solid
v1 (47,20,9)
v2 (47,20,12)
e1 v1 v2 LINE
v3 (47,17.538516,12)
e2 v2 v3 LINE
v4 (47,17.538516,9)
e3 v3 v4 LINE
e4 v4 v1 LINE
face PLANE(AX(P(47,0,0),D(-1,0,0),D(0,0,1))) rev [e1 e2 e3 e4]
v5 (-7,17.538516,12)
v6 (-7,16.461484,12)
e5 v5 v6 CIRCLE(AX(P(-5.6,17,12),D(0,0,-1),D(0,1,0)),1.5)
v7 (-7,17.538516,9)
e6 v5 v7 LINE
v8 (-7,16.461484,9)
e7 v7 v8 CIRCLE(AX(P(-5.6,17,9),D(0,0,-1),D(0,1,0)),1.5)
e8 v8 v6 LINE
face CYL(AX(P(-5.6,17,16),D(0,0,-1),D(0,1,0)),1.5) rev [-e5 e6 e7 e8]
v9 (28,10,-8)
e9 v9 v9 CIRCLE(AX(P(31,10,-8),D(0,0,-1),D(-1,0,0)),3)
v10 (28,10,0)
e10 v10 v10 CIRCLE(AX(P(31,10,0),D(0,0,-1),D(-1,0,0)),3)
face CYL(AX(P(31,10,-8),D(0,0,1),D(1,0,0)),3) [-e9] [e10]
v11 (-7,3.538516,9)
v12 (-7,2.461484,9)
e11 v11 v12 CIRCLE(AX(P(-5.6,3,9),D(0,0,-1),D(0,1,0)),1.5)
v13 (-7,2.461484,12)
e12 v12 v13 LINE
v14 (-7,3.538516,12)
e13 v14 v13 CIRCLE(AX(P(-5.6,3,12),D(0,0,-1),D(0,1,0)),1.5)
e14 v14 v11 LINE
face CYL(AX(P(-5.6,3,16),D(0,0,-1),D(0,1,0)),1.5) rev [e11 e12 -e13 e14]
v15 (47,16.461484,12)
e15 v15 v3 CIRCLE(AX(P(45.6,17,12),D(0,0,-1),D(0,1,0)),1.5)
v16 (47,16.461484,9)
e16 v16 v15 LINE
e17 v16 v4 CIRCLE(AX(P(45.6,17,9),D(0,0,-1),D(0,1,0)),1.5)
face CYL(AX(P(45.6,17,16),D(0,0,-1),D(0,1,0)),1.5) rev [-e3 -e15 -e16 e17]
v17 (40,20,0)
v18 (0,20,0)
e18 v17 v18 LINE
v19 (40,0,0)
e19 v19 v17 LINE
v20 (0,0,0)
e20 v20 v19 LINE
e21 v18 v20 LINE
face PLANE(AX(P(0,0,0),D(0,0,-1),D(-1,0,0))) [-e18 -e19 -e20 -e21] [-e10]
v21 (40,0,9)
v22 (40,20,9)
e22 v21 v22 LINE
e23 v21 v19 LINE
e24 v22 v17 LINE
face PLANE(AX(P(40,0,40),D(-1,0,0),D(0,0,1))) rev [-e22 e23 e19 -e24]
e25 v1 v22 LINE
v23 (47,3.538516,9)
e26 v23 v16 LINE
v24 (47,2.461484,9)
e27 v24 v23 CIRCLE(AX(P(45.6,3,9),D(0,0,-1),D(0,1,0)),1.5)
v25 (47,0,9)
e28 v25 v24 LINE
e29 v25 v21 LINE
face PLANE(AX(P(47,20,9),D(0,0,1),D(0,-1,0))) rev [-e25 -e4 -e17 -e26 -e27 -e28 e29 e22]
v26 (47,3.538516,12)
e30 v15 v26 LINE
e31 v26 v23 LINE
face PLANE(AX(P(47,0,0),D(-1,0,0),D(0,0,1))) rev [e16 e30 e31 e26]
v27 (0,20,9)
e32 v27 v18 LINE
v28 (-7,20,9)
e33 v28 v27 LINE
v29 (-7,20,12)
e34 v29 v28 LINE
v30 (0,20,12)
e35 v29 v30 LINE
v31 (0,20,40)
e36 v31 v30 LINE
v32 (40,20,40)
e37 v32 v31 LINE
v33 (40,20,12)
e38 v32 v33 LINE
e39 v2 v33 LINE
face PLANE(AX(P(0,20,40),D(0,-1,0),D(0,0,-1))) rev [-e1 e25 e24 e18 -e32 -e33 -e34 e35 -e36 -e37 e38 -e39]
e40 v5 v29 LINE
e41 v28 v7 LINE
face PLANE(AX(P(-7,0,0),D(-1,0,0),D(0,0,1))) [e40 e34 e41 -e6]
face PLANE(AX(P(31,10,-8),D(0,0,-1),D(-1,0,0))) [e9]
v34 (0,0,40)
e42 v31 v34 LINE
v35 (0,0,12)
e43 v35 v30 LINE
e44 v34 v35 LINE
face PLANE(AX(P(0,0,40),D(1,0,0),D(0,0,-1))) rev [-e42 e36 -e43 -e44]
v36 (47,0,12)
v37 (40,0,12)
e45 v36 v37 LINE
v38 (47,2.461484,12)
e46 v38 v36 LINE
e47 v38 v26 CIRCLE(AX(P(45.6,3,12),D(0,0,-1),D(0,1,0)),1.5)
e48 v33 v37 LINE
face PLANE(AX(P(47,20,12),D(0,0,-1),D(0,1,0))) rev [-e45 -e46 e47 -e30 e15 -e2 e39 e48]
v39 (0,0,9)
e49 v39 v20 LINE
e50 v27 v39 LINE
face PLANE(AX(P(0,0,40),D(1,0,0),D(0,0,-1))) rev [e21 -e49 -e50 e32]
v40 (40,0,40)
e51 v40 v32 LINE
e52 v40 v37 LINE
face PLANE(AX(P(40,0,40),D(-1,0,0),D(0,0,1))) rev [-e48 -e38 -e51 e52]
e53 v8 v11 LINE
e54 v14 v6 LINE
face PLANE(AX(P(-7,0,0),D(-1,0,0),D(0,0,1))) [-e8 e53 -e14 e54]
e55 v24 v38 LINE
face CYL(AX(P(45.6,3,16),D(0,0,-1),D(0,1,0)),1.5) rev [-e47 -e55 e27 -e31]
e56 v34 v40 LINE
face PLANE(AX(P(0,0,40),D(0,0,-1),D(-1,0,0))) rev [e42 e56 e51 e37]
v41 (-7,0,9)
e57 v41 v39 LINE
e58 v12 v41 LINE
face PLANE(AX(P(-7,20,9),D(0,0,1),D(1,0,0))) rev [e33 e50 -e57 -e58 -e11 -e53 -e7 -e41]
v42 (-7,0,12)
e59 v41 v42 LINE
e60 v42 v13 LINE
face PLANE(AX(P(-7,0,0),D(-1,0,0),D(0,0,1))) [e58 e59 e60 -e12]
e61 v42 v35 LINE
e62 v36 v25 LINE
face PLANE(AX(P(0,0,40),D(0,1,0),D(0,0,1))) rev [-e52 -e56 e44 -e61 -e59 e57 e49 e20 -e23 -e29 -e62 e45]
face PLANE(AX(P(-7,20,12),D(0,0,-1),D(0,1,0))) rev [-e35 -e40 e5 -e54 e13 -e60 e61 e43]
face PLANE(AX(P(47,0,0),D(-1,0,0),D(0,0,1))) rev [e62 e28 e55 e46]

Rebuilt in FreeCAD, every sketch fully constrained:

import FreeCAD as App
import Part
import Sketcher


def add_polygon(sketch, points):
    """Adds a closed chain of lines whose ends are joined by coincident constraints."""
    first, n = sketch.GeometryCount, len(points)
    for a, b in zip(points, points[1:] + points[:1]):
        sketch.addGeometry(Part.LineSegment(App.Vector(*a, 0), App.Vector(*b, 0)), False)
    for i in range(n):
        sketch.addConstraint(Sketcher.Constraint("Coincident", first + i, 2, first + (i + 1) % n, 1))

doc = App.newDocument("Part")
body = doc.addObject("PartDesign::Body", "Body")

sketch1 = body.newObject("Sketcher::SketchObject", "Sketch")
sketch1.AttachmentSupport = (doc.getObject("XY_Plane"), [""])
sketch1.MapMode = "FlatFace"
add_polygon(sketch1, [(0, 20), (0, 0), (40, 0), (40, 20)])
sketch1.addConstraint(Sketcher.Constraint("Vertical", 0))
sketch1.addConstraint(Sketcher.Constraint("Horizontal", 1))
sketch1.addConstraint(Sketcher.Constraint("Vertical", 2))
sketch1.addConstraint(Sketcher.Constraint("Horizontal", 3))
sketch1.addConstraint(Sketcher.Constraint("Coincident", 0, 2, -1, 1))
sketch1.addConstraint(Sketcher.Constraint("DistanceX", 1, 1, 1, 2, 40.0))
sketch1.addConstraint(Sketcher.Constraint("DistanceY", 0, 2, 0, 1, 20.0))
pad1 = body.newObject("PartDesign::Pad", "Pad")
pad1.Profile = sketch1
pad1.Length = 40

sketch2 = body.newObject("Sketcher::SketchObject", "Sketch001")
sketch2.AttachmentSupport = (doc.getObject("YZ_Plane"), [""])
sketch2.MapMode = "FlatFace"
sketch2.AttachmentOffset = App.Placement(App.Vector(0, 0, 40), App.Rotation())
add_polygon(sketch2, [(20, 12), (0, 12), (0, 9), (20, 9)])
sketch2.addConstraint(Sketcher.Constraint("Horizontal", 0))
sketch2.addConstraint(Sketcher.Constraint("Vertical", 1))
sketch2.addConstraint(Sketcher.Constraint("Horizontal", 2))
sketch2.addConstraint(Sketcher.Constraint("Vertical", 3))
sketch2.addConstraint(Sketcher.Constraint("PointOnObject", 0, 2, -2))
sketch2.addConstraint(Sketcher.Constraint("DistanceX", 0, 2, 0, 1, 20.0))
sketch2.addConstraint(Sketcher.Constraint("DistanceY", 1, 2, 1, 1, 3.0))
sketch2.addConstraint(Sketcher.Constraint("DistanceY", -1, 1, 0, 2, 12.0))
pad2 = body.newObject("PartDesign::Pad", "Pad001")
pad2.Profile = sketch2
pad2.Length = 7

sketch3 = body.newObject("Sketcher::SketchObject", "Sketch002")
sketch3.AttachmentSupport = (doc.getObject("YZ_Plane"), [""])
sketch3.MapMode = "FlatFace"
add_polygon(sketch3, [(20, 9), (0, 9), (0, 12), (20, 12)])
sketch3.addConstraint(Sketcher.Constraint("Horizontal", 0))
sketch3.addConstraint(Sketcher.Constraint("Vertical", 1))
sketch3.addConstraint(Sketcher.Constraint("Horizontal", 2))
sketch3.addConstraint(Sketcher.Constraint("Vertical", 3))
sketch3.addConstraint(Sketcher.Constraint("PointOnObject", 0, 2, -2))
sketch3.addConstraint(Sketcher.Constraint("DistanceX", 0, 2, 0, 1, 20.0))
sketch3.addConstraint(Sketcher.Constraint("DistanceY", 1, 1, 1, 2, 3.0))
sketch3.addConstraint(Sketcher.Constraint("DistanceY", -1, 1, 0, 2, 9.0))
pad3 = body.newObject("PartDesign::Pad", "Pad002")
pad3.Profile = sketch3
pad3.Length = 7
pad3.Reversed = True

sketch4 = body.newObject("Sketcher::SketchObject", "Sketch003")
sketch4.AttachmentSupport = (doc.getObject("XY_Plane"), [""])
sketch4.MapMode = "FlatFace"
sketch4.AttachmentOffset = App.Placement(App.Vector(0, 0, 9), App.Rotation())
sketch4.addGeometry(Part.Circle(App.Vector(45.6, 17, 0), App.Vector(0, 0, 1), 1.5), False)
sketch4.addGeometry(Part.Circle(App.Vector(45.6, 3, 0), App.Vector(0, 0, 1), 1.5), False)
sketch4.addGeometry(Part.Circle(App.Vector(-5.6, 17, 0), App.Vector(0, 0, 1), 1.5), False)
sketch4.addGeometry(Part.Circle(App.Vector(-5.6, 3, 0), App.Vector(0, 0, 1), 1.5), False)
sketch4.addConstraint(Sketcher.Constraint("Equal", 0, 1))
sketch4.addConstraint(Sketcher.Constraint("Equal", 1, 2))
sketch4.addConstraint(Sketcher.Constraint("Equal", 2, 3))
sketch4.addConstraint(Sketcher.Constraint("Horizontal", 0, 3, 2, 3))
sketch4.addConstraint(Sketcher.Constraint("Horizontal", 1, 3, 3, 3))
sketch4.addConstraint(Sketcher.Constraint("Vertical", 0, 3, 1, 3))
sketch4.addConstraint(Sketcher.Constraint("Vertical", 2, 3, 3, 3))
sketch4.addConstraint(Sketcher.Constraint("Diameter", 0, 3.0))
sketch4.addConstraint(Sketcher.Constraint("DistanceY", -1, 1, 0, 3, 17.0))
sketch4.addConstraint(Sketcher.Constraint("DistanceY", -1, 1, 1, 3, 3.0))
sketch4.addConstraint(Sketcher.Constraint("DistanceX", -1, 1, 0, 3, 45.6))
sketch4.addConstraint(Sketcher.Constraint("DistanceX", 2, 3, -1, 1, 5.6))
pocket1 = body.newObject("PartDesign::Pocket", "Pocket")
pocket1.Profile = sketch4
pocket1.Length = 7
pocket1.Reversed = True

sketch5 = body.newObject("Sketcher::SketchObject", "Sketch004")
sketch5.AttachmentSupport = (doc.getObject("XY_Plane"), [""])
sketch5.MapMode = "FlatFace"
sketch5.addGeometry(Part.Circle(App.Vector(31, 10, 0), App.Vector(0, 0, 1), 3), False)
sketch5.addConstraint(Sketcher.Constraint("Diameter", 0, 6.0))
sketch5.addConstraint(Sketcher.Constraint("DistanceX", -1, 1, 0, 3, 31.0))
sketch5.addConstraint(Sketcher.Constraint("DistanceY", -1, 1, 0, 3, 10.0))
pad4 = body.newObject("PartDesign::Pad", "Pad003")
pad4.Profile = sketch5
pad4.Length = 8
pad4.Reversed = True

doc.recompute()
